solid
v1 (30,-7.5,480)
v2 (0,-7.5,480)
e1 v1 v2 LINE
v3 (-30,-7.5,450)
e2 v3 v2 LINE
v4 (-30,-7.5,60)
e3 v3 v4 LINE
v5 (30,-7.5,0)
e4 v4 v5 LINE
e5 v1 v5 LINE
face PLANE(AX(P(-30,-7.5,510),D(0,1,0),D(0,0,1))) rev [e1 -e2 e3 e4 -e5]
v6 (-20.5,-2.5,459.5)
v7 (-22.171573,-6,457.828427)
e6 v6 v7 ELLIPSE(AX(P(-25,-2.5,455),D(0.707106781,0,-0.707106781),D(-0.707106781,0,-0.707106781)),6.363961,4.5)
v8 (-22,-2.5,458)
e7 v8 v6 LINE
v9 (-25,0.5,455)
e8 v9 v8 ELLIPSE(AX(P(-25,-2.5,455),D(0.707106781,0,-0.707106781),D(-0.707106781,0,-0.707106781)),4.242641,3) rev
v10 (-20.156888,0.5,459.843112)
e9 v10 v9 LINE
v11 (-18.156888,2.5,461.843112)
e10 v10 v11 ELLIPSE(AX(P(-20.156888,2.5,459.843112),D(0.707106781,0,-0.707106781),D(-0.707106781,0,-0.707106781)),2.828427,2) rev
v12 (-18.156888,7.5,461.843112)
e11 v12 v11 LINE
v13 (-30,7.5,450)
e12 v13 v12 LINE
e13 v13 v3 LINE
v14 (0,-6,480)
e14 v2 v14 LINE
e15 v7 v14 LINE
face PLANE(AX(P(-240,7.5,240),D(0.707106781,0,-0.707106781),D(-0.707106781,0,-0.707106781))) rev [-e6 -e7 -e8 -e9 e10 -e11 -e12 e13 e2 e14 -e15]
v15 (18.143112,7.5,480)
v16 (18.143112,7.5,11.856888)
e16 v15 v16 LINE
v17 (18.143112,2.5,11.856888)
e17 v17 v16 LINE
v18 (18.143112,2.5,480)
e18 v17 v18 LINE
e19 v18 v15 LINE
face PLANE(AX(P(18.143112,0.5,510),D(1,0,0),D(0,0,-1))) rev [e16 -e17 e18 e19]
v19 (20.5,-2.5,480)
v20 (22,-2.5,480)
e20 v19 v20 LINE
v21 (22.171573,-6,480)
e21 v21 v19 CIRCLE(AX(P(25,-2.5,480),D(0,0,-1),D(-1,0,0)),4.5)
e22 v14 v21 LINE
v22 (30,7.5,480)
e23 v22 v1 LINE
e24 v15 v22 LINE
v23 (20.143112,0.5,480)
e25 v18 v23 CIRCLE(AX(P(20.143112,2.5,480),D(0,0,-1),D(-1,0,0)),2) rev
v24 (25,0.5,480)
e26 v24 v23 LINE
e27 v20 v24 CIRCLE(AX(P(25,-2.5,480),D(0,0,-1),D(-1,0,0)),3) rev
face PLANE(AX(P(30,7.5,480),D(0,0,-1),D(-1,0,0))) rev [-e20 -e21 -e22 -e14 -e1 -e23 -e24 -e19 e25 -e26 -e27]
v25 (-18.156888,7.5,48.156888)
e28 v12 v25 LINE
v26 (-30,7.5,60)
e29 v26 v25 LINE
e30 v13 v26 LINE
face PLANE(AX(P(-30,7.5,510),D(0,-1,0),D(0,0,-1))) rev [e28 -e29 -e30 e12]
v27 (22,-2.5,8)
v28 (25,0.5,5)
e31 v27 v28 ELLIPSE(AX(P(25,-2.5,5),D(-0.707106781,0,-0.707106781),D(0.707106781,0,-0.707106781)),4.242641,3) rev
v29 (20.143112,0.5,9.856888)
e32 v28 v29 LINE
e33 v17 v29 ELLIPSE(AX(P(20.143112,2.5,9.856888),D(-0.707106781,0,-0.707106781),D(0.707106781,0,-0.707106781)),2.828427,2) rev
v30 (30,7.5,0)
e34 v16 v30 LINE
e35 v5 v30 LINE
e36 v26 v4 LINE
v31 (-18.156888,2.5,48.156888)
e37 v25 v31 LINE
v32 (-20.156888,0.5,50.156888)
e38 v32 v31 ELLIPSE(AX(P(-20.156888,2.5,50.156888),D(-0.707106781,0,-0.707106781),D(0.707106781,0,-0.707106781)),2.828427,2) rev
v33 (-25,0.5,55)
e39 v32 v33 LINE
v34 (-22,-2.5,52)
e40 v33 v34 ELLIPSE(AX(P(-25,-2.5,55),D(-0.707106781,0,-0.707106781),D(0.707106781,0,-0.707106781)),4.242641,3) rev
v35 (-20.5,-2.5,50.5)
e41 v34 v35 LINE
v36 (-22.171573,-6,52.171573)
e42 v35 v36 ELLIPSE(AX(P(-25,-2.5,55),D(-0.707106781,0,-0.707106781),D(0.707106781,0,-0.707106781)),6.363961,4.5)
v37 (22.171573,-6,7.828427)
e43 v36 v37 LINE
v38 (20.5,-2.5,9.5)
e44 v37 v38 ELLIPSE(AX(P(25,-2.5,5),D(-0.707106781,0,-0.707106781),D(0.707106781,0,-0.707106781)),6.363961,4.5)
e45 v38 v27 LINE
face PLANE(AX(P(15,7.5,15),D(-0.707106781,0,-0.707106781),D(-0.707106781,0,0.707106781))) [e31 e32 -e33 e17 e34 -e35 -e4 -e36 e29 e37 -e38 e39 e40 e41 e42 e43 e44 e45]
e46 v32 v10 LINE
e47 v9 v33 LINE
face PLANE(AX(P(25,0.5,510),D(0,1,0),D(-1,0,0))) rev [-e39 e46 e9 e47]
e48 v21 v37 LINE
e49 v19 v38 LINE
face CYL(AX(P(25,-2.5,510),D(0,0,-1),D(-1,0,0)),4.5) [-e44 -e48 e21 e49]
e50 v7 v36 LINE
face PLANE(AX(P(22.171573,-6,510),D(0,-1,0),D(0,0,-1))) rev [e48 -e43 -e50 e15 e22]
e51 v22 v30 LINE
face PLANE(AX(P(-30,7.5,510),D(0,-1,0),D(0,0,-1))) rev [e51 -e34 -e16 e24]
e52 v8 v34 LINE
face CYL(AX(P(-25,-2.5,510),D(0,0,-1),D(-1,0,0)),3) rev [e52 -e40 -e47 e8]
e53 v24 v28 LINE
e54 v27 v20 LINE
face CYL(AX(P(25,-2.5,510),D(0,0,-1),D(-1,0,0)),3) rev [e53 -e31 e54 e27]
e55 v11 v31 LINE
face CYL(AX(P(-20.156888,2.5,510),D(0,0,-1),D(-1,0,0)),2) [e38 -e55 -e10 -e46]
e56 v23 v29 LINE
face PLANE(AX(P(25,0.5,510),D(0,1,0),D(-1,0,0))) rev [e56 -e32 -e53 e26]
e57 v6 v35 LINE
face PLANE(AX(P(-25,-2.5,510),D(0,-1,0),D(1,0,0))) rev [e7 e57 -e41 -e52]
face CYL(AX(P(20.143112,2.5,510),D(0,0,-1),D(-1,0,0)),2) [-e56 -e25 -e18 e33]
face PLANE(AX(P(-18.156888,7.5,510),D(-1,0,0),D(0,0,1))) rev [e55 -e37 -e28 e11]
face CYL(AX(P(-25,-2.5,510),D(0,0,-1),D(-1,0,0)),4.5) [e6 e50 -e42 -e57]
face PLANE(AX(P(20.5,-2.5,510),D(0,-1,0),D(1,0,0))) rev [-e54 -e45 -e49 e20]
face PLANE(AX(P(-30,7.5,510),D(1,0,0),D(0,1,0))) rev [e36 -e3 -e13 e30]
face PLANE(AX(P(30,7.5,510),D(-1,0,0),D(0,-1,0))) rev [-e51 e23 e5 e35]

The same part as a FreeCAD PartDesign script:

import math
import FreeCAD as App
import Part
import Sketcher
from FreeCAD import Vector
Q = App.Units.Quantity


def edges_at(feature, points):
    """Names of the edges that pass closest to the given points."""
    edges = feature.Shape.Edges
    near = lambda p: min(range(len(edges)), key=lambda i: edges[i].distToShape(Part.Vertex(*p))[0])
    return sorted({f"Edge{near(p) + 1}" for p in points})

doc = App.newDocument("Part")
body = doc.addObject("PartDesign::Body", "Body")

# Sketch on XY plane
sketch1 = body.newObject("Sketcher::SketchObject", "Sketch")
sketch1.AttachmentSupport = (doc.getObject("XY_Plane"), [""])
sketch1.MapMode = "FlatFace"
sketch1.addGeometry([
    Part.LineSegment(Vector(-30, 7.5, 0), Vector(-30, -7.5, 0)),
    Part.LineSegment(Vector(-30, -7.5, 0), Vector(30, -7.5, 0)),
    Part.LineSegment(Vector(30, -7.5, 0), Vector(30, 7.5, 0)),
    Part.LineSegment(Vector(30, 7.5, 0), Vector(-30, 7.5, 0)),
], False)
sketch1.addConstraint([
    Sketcher.Constraint("Coincident", 0, 2, 1, 1),
    Sketcher.Constraint("Coincident", 1, 2, 2, 1),
    Sketcher.Constraint("Coincident", 2, 2, 3, 1),
    Sketcher.Constraint("Coincident", 3, 2, 0, 1),
    Sketcher.Constraint("Vertical", 0),
    Sketcher.Constraint("Horizontal", 1),
    Sketcher.Constraint("Vertical", 2),
    Sketcher.Constraint("Horizontal", 3),
    Sketcher.Constraint("Symmetric", 0, 2, 2, 2, -1, 1),
    Sketcher.Constraint("DistanceX", 1, 1, 1, 2, Q("60 mm")),
    Sketcher.Constraint("DistanceY", 0, 2, 0, 1, Q("15 mm")),
])
pad1 = body.newObject("PartDesign::Pad", "Pad")
pad1.Profile = sketch1
pad1.Length = 510

# Sketch on XY plane
sketch2 = body.newObject("Sketcher::SketchObject", "Sketch001")
sketch2.AttachmentSupport = (doc.getObject("XY_Plane"), [""])
sketch2.MapMode = "FlatFace"
sketch2.addGeometry([
    Part.Circle(Vector(25, -2.5, 0), Vector(0, 0, 1), 3),
    Part.Circle(Vector(-25, -2.5, 0), Vector(0, 0, 1), 3),
], False)
sketch2.addConstraint([
    Sketcher.Constraint("Equal", 0, 1),
    Sketcher.Constraint("Symmetric", 0, 3, 1, 3, -2),
    Sketcher.Constraint("Diameter", 0, Q("6 mm")),
    Sketcher.Constraint("DistanceX", -1, 1, 0, 3, Q("25 mm")),
    Sketcher.Constraint("DistanceY", 0, 3, -1, 1, Q("2.5 mm")),
])
pocket1 = body.newObject("PartDesign::Pocket", "Pocket")
pocket1.Profile = sketch2
pocket1.Type = "ThroughAll"
pocket1.Reversed = True

# Sketch on XY plane
sketch3 = body.newObject("Sketcher::SketchObject", "Sketch002")
sketch3.AttachmentSupport = (doc.getObject("XY_Plane"), [""])
sketch3.MapMode = "FlatFace"
sketch3.addGeometry([
    Part.LineSegment(Vector(22.171573, -6, 0), Vector(-22.171573, -6, 0)),  # 0
    Part.ArcOfCircle(Part.Circle(Vector(-25, -2.5, 0), Vector(0, 0, 1), 4.5), math.radians(-51.057559), math.radians(0)),  # 1
    Part.LineSegment(Vector(-20.5, -2.5, 0), Vector(-25, -2.5, 0)),  # 2
    Part.LineSegment(Vector(-25, -2.5, 0), Vector(-25, 0.5, 0)),  # 3
    Part.LineSegment(Vector(-25, 0.5, 0), Vector(25, 0.5, 0)),  # 4
    Part.LineSegment(Vector(25, 0.5, 0), Vector(25, -2.5, 0)),  # 5
    Part.LineSegment(Vector(25, -2.5, 0), Vector(20.5, -2.5, 0)),  # 6
    Part.ArcOfCircle(Part.Circle(Vector(25, -2.5, 0), Vector(0, 0, 1), 4.5), math.radians(180), math.radians(231.057559)),  # 7
], False)
sketch3.addConstraint([
    Sketcher.Constraint("Coincident", 0, 2, 1, 1),
    Sketcher.Constraint("Coincident", 1, 2, 2, 1),
    Sketcher.Constraint("Coincident", 2, 2, 3, 1),
    Sketcher.Constraint("Coincident", 3, 2, 4, 1),
    Sketcher.Constraint("Coincident", 4, 2, 5, 1),
    Sketcher.Constraint("Coincident", 5, 2, 6, 1),
    Sketcher.Constraint("Coincident", 6, 2, 7, 1),
    Sketcher.Constraint("Coincident", 7, 2, 0, 1),
    Sketcher.Constraint("Horizontal", 0),
    Sketcher.Constraint("Horizontal", 2),
    Sketcher.Constraint("Vertical", 3),
    Sketcher.Constraint("Horizontal", 4),
    Sketcher.Constraint("Vertical", 5),
    Sketcher.Constraint("Horizontal", 6),
    Sketcher.Constraint("Coincident", 2, 2, 1, 3),
    Sketcher.Constraint("Coincident", 5, 2, 7, 3),
    Sketcher.Constraint("Equal", 1, 7),
    Sketcher.Constraint("Symmetric", 1, 3, 7, 3, -2),
    Sketcher.Constraint("Radius", 1, Q("4.5 mm")),
    Sketcher.Constraint("DistanceX", 4, 1, 4, 2, Q("50 mm")),
    Sketcher.Constraint("DistanceY", 3, 1, 3, 2, Q("3 mm")),
    Sketcher.Constraint("DistanceY", 0, 2, -1, 1, Q("6 mm")),
    Sketcher.Constraint("DistanceY", 1, 3, -1, 1, Q("2.5 mm")),
])
pocket2 = body.newObject("PartDesign::Pocket", "Pocket001")
pocket2.Profile = sketch3
pocket2.Type = "ThroughAll"
pocket2.Reversed = True

# Sketch on XY plane
sketch4 = body.newObject("Sketcher::SketchObject", "Sketch003")
sketch4.AttachmentSupport = (doc.getObject("XY_Plane"), [""])
sketch4.MapMode = "FlatFace"
sketch4.addGeometry([
    Part.LineSegment(Vector(18.143112, 7.5, 0), Vector(18.143112, 0.5, 0)),
    Part.LineSegment(Vector(18.143112, 0.5, 0), Vector(-18.156888, 0.5, 0)),
    Part.LineSegment(Vector(-18.156888, 0.5, 0), Vector(-18.156888, 7.5, 0)),
    Part.LineSegment(Vector(-18.156888, 7.5, 0), Vector(18.143112, 7.5, 0)),
], False)
sketch4.addConstraint([
    Sketcher.Constraint("Coincident", 0, 2, 1, 1),
    Sketcher.Constraint("Coincident", 1, 2, 2, 1),
    Sketcher.Constraint("Coincident", 2, 2, 3, 1),
    Sketcher.Constraint("Coincident", 3, 2, 0, 1),
    Sketcher.Constraint("Vertical", 0),
    Sketcher.Constraint("Horizontal", 1),
    Sketcher.Constraint("Vertical", 2),
    Sketcher.Constraint("Horizontal", 3),
    Sketcher.Constraint("DistanceY", 0, 2, 0, 1, Q("7 mm")),
    Sketcher.Constraint("DistanceX", 1, 2, 1, 1, Q("36.3 mm")),
    Sketcher.Constraint("DistanceY", -1, 1, 0, 2, Q("0.5 mm")),
    Sketcher.Constraint("DistanceX", -1, 1, 0, 2, Q("18.143112 mm")),
])
pocket3 = body.newObject("PartDesign::Pocket", "Pocket002")
pocket3.Profile = sketch4
pocket3.Type = "ThroughAll"
pocket3.Reversed = True
doc.recompute()

fillet = body.newObject("PartDesign::Fillet", "Fillet")
fillet.Base = (pocket3, edges_at(pocket3, [(-18.157, 0.5, 255), (18.143, 0.5, 255)]))
fillet.Radius = 2

# Sketch on XZ plane
sketch5 = body.newObject("Sketcher::SketchObject", "Sketch004")
sketch5.AttachmentSupport = (doc.getObject("XZ_Plane"), [""])
sketch5.MapMode = "FlatFace"
sketch5.AttachmentOffset = App.Placement(Vector(0, 0, 7.5), App.Rotation())
sketch5.addGeometry([
    Part.LineSegment(Vector(-30, 510, 0), Vector(-30, 450, 0)),  # 0
    Part.LineSegment(Vector(-30, 450, 0), Vector(30, 510, 0)),  # 1
    Part.LineSegment(Vector(30, 510, 0), Vector(-30, 510, 0)),  # 2
    Part.LineSegment(Vector(-30, 0, 0), Vector(30, 0, 0)),  # 3
    Part.LineSegment(Vector(30, 0, 0), Vector(-30, 60, 0)),  # 4
    Part.LineSegment(Vector(-30, 60, 0), Vector(-30, 0, 0)),  # 5
], False)
sketch5.addConstraint([
    Sketcher.Constraint("Coincident", 0, 2, 1, 1),
    Sketcher.Constraint("Coincident", 1, 2, 2, 1),
    Sketcher.Constraint("Coincident", 2, 2, 0, 1),
    Sketcher.Constraint("Coincident", 3, 2, 4, 1),
    Sketcher.Constraint("Coincident", 4, 2, 5, 1),
    Sketcher.Constraint("Coincident", 5, 2, 3, 1),
    Sketcher.Constraint("Vertical", 0),
    Sketcher.Constraint("Horizontal", 2),
    Sketcher.Constraint("Horizontal", 3),
    Sketcher.Constraint("Vertical", 5),
    Sketcher.Constraint("Symmetric", 3, 2, 5, 2, -1, 1),
    Sketcher.Constraint("Perpendicular", 1, 4),
    Sketcher.Constraint("Vertical", 1, 2, 3, 2),
    Sketcher.Constraint("Vertical", 2, 2, 4, 2),
    Sketcher.Constraint("Equal", 3, 0),
    Sketcher.Constraint("DistanceX", 2, 2, 2, 1, Q("60 mm")),
    Sketcher.Constraint("DistanceY", -1, 1, 0, 2, Q("450 mm")),
])
pocket4 = body.newObject("PartDesign::Pocket", "Pocket003")
pocket4.Profile = sketch5
pocket4.Type = "ThroughAll"

# Sketch on XZ plane
sketch6 = body.newObject("Sketcher::SketchObject", "Sketch005")
sketch6.AttachmentSupport = (doc.getObject("XZ_Plane"), [""])
sketch6.MapMode = "FlatFace"
sketch6.AttachmentOffset = App.Placement(Vector(0, 0, 7.5), App.Rotation())
sketch6.addGeometry([
    Part.LineSegment(Vector(0, 510, 0), Vector(0, 480, 0)),
    Part.LineSegment(Vector(0, 480, 0), Vector(30, 480, 0)),
    Part.LineSegment(Vector(30, 480, 0), Vector(30, 510, 0)),
    Part.LineSegment(Vector(30, 510, 0), Vector(0, 510, 0)),
], False)
sketch6.addConstraint([
    Sketcher.Constraint("Coincident", 0, 2, 1, 1),
    Sketcher.Constraint("Coincident", 1, 2, 2, 1),
    Sketcher.Constraint("Coincident", 2, 2, 3, 1),
    Sketcher.Constraint("Coincident", 3, 2, 0, 1),
    Sketcher.Constraint("Vertical", 0),
    Sketcher.Constraint("Horizontal", 1),
    Sketcher.Constraint("Vertical", 2),
    Sketcher.Constraint("Horizontal", 3),
    Sketcher.Constraint("PointOnObject", 0, 2, -2),
    Sketcher.Constraint("Equal", 3, 0),
    Sketcher.Constraint("DistanceX", 1, 1, 1, 2, Q("30 mm")),
    Sketcher.Constraint("DistanceY", -1, 1, 0, 2, Q("480 mm")),
])
pocket5 = body.newObject("PartDesign::Pocket", "Pocket004")
pocket5.Profile = sketch6
pocket5.Type = "ThroughAll"
pocket5.Midplane = True

doc.recompute()
